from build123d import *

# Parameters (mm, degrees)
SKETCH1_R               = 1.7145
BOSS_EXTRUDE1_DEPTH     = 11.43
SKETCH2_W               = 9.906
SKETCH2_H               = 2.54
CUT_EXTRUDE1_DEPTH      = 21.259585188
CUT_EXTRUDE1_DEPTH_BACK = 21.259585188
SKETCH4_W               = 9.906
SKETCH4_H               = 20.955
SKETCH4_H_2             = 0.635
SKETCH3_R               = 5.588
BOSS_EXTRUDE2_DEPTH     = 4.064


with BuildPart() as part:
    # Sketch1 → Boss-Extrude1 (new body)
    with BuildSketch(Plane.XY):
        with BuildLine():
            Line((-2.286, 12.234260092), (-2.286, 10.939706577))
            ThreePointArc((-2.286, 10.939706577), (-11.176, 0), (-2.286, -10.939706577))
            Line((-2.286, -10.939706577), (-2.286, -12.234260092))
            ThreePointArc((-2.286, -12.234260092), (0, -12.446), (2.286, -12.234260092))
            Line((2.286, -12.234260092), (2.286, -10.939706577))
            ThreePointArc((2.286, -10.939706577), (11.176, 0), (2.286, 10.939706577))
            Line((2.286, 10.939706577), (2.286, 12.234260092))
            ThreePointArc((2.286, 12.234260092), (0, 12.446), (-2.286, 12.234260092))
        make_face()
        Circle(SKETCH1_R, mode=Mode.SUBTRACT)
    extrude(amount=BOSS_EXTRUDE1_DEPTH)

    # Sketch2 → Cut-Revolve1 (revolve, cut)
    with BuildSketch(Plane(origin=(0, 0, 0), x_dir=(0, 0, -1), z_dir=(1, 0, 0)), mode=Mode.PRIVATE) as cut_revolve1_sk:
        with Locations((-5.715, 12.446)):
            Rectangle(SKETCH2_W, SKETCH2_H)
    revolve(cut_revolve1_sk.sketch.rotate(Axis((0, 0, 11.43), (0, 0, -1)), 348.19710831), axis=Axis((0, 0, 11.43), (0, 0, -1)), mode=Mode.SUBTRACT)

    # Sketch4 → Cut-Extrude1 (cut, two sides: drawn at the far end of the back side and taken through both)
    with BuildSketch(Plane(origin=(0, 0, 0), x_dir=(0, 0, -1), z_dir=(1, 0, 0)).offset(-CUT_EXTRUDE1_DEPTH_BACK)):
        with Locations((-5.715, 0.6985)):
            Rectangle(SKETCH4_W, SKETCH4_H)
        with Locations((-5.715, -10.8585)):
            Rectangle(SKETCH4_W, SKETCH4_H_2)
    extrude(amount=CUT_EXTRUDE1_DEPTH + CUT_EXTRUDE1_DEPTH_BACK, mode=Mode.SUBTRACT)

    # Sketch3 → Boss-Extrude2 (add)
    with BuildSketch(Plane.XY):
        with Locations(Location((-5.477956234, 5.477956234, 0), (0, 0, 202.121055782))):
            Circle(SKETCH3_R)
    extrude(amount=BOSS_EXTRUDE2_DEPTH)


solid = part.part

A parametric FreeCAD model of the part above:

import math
import FreeCAD as App
import Part
import Sketcher
Q = App.Units.Quantity

doc = App.newDocument("Part")
params = doc.addObject("Spreadsheet::Sheet", "Params")
for row, (alias, value) in enumerate([
    ("sketch1_radius", "0.44 in"),
    ("sketch1_radius2", "0.49 in"),
    ("sketch1_diameter", "0.135 in"),
    ("pad1_length", "0.45 in"),
    ("sketch2_width", "0.1 in"),
    ("sketch2_height", "0.39 in"),
    ("groove_angle", "360 deg"),
    ("sketch3_height", "0.39 in"),
    ("sketch3_width", "0.825 in"),
    ("sketch3_width2", "0.025 in"),
    ("sketch4_diameter", "0.44 in"),
    ("pad2_length", "0.16 in"),
], start=1):
    params.set(f"A{row}", alias)
    params.set(f"B{row}", "=" + value)
    params.setAlias(f"B{row}", alias)

body = doc.addObject("PartDesign::Body", "Body")

sketch1 = body.newObject("Sketcher::SketchObject", "Sketch")
sketch1.AttachmentSupport = (doc.getObject("XY_Plane"), [""])
sketch1.MapMode = "FlatFace"
sketch1.addGeometry([
    Part.LineSegment(App.Vector(-2.3, 12.2, 0), App.Vector(-2.3, 10.9, 0)),
    Part.ArcOfCircle(Part.Circle(App.Vector(0, 0, 0), App.Vector(0, 0, 1), 11.2), math.radians(102), math.radians(258)),
    Part.LineSegment(App.Vector(-2.3, -10.9, 0), App.Vector(-2.3, -12.2, 0)),
    Part.ArcOfCircle(Part.Circle(App.Vector(0, 0, 0), App.Vector(0, 0, 1), 12.4), math.radians(-101), math.radians(-79)),
    Part.LineSegment(App.Vector(2.3, -12.2, 0), App.Vector(2.3, -10.9, 0)),
    Part.ArcOfCircle(Part.Circle(App.Vector(0, 0, 0), App.Vector(0, 0, 1), 11.2), math.radians(-78), math.radians(78)),
    Part.LineSegment(App.Vector(2.3, 10.9, 0), App.Vector(2.3, 12.2, 0)),
    Part.ArcOfCircle(Part.Circle(App.Vector(0, 0, 0), App.Vector(0, 0, 1), 12.4), math.radians(79), math.radians(101)),
    Part.Circle(App.Vector(0, 0, 0), App.Vector(0, 0, 1), 1.7),
], False)
sketch1.addConstraint([
    Sketcher.Constraint("Coincident", 0, 2, 1, 1),
    Sketcher.Constraint("Coincident", 1, 2, 2, 1),
    Sketcher.Constraint("Coincident", 2, 2, 3, 1),
    Sketcher.Constraint("Coincident", 3, 2, 4, 1),
    Sketcher.Constraint("Coincident", 4, 2, 5, 1),
    Sketcher.Constraint("Coincident", 5, 2, 6, 1),
    Sketcher.Constraint("Coincident", 6, 2, 7, 1),
    Sketcher.Constraint("Coincident", 7, 2, 0, 1),
    Sketcher.Constraint("Vertical", 0),
    Sketcher.Constraint("Vertical", 2),
    Sketcher.Constraint("Vertical", 4),
    Sketcher.Constraint("Vertical", 6),
    Sketcher.Constraint("Coincident", 1, 3, -1, 1),
    Sketcher.Constraint("Coincident", 3, 3, -1, 1),
    Sketcher.Constraint("Coincident", 5, 3, -1, 1),
    Sketcher.Constraint("Coincident", 7, 3, -1, 1),
    Sketcher.Constraint("Coincident", 8, 3, -1, 1),
    Sketcher.Constraint("Equal", 1, 5),
    Sketcher.Constraint("Equal", 3, 7),
    Sketcher.Constraint("Horizontal", 2, 2, 3, 2),
    Sketcher.Constraint("Horizontal", 0, 2, 5, 2),
    Sketcher.Constraint("Vertical", 0, 2, 1, 2),
    Sketcher.Constraint("Radius", 1, Q("0.44 in")),
    Sketcher.Constraint("Radius", 3, Q("0.49 in")),
    Sketcher.Constraint("Diameter", 8, Q("0.135 in")),
    Sketcher.Constraint("DistanceX", 0, 2, -1, 1, Q("0.09 in")),
])
sketch1.setExpression("Constraints[22]", "Params.sketch1_radius")
sketch1.setExpression("Constraints[23]", "Params.sketch1_radius2")
sketch1.setExpression("Constraints[24]", "Params.sketch1_diameter")
pad1 = body.newObject("PartDesign::Pad", "Pad")
pad1.Profile = sketch1
pad1.setExpression("Length", "Params.pad1_length")

sketch2 = body.newObject("Sketcher::SketchObject", "Sketch001")
sketch2.AttachmentSupport = (doc.getObject("YZ_Plane"), [""])
sketch2.MapMode = "FlatFace"
sketch2.addGeometry([
    Part.LineSegment(App.Vector(13.7, 10.7, 0), App.Vector(11.2, 10.7, 0)),
    Part.LineSegment(App.Vector(11.2, 10.7, 0), App.Vector(11.2, 0.8, 0)),
    Part.LineSegment(App.Vector(11.2, 0.8, 0), App.Vector(13.7, 0.8, 0)),
    Part.LineSegment(App.Vector(13.7, 0.8, 0), App.Vector(13.7, 10.7, 0)),
], False)
sketch2.addConstraint([
    Sketcher.Constraint("Coincident", 0, 2, 1, 1),
    Sketcher.Constraint("Coincident", 1, 2, 2, 1),
    Sketcher.Constraint("Coincident", 2, 2, 3, 1),
    Sketcher.Constraint("Coincident", 3, 2, 0, 1),
    Sketcher.Constraint("Horizontal", 0),
    Sketcher.Constraint("Vertical", 1),
    Sketcher.Constraint("Horizontal", 2),
    Sketcher.Constraint("Vertical", 3),
    Sketcher.Constraint("DistanceX", 0, 2, 0, 1, Q("0.1 in")),
    Sketcher.Constraint("DistanceY", 1, 2, 1, 1, Q("0.39 in")),
    Sketcher.Constraint("DistanceX", -1, 1, 0, 2, Q("0.44 in")),
    Sketcher.Constraint("DistanceY", -1, 1, 0, 2, Q("0.42 in")),
])
sketch2.setExpression("Constraints[8]", "Params.sketch2_width")
sketch2.setExpression("Constraints[9]", "Params.sketch2_height")
groove = body.newObject("PartDesign::Groove", "Groove")
groove.Profile = sketch2
groove.ReferenceAxis = (sketch2, ["V_Axis"])
groove.setExpression("Angle", "Params.groove_angle")

sketch3 = body.newObject("Sketcher::SketchObject", "Sketch002")
sketch3.AttachmentSupport = (doc.getObject("YZ_Plane"), [""])
sketch3.MapMode = "FlatFace"
sketch3.addGeometry([
    Part.LineSegment(App.Vector(11.2, 10.7, 0), App.Vector(-9.8, 10.7, 0)),
    Part.LineSegment(App.Vector(-9.8, 10.7, 0), App.Vector(-9.8, 0.8, 0)),
    Part.LineSegment(App.Vector(-9.8, 0.8, 0), App.Vector(11.2, 0.8, 0)),
    Part.LineSegment(App.Vector(11.2, 0.8, 0), App.Vector(11.2, 10.7, 0)),
    Part.LineSegment(App.Vector(-10.5, 10.7, 0), App.Vector(-11.2, 10.7, 0)),
    Part.LineSegment(App.Vector(-11.2, 10.7, 0), App.Vector(-11.2, 0.8, 0)),
    Part.LineSegment(App.Vector(-11.2, 0.8, 0), App.Vector(-10.5, 0.8, 0)),
    Part.LineSegment(App.Vector(-10.5, 0.8, 0), App.Vector(-10.5, 10.7, 0)),
], False)
sketch3.addConstraint([
    Sketcher.Constraint("Coincident", 0, 2, 1, 1),
    Sketcher.Constraint("Coincident", 1, 2, 2, 1),
    Sketcher.Constraint("Coincident", 2, 2, 3, 1),
    Sketcher.Constraint("Coincident", 3, 2, 0, 1),
    Sketcher.Constraint("Coincident", 4, 2, 5, 1),
    Sketcher.Constraint("Coincident", 5, 2, 6, 1),
    Sketcher.Constraint("Coincident", 6, 2, 7, 1),
    Sketcher.Constraint("Coincident", 7, 2, 4, 1),
    Sketcher.Constraint("Horizontal", 0),
    Sketcher.Constraint("Vertical", 1),
    Sketcher.Constraint("Horizontal", 2),
    Sketcher.Constraint("Vertical", 3),
    Sketcher.Constraint("Horizontal", 4),
    Sketcher.Constraint("Vertical", 5),
    Sketcher.Constraint("Horizontal", 6),
    Sketcher.Constraint("Vertical", 7),
    Sketcher.Constraint("Symmetric", 3, 2, 4, 2, -2),
    Sketcher.Constraint("Horizontal", 2, 2, 5, 2),
    Sketcher.Constraint("DistanceY", 1, 2, 1, 1, Q("0.39 in")),
    Sketcher.Constraint("DistanceX", 0, 2, 0, 1, Q("0.825 in")),
    Sketcher.Constraint("DistanceX", 4, 2, 4, 1, Q("0.025 in")),
    Sketcher.Constraint("DistanceY", -1, 1, 0, 2, Q("0.42 in")),
    Sketcher.Constraint("DistanceX", -1, 1, 2, 2, Q("0.44 in")),
])
sketch3.setExpression("Constraints[18]", "Params.sketch3_height")
sketch3.setExpression("Constraints[19]", "Params.sketch3_width")
sketch3.setExpression("Constraints[20]", "Params.sketch3_width2")
pocket1 = body.newObject("PartDesign::Pocket", "Pocket")
pocket1.Profile = sketch3
pocket1.Type = "ThroughAll"
pocket1.Midplane = True

sketch4 = body.newObject("Sketcher::SketchObject", "Sketch003")
sketch4.AttachmentSupport = (doc.getObject("XY_Plane"), [""])
sketch4.MapMode = "FlatFace"
sketch4.addGeometry(Part.Circle(App.Vector(-5, 5, 0), App.Vector(0, 0, 1), 6), False)
sketch4.addConstraint([
    Sketcher.Constraint("Diameter", 0, Q("0.44 in")),
    Sketcher.Constraint("DistanceX", 0, 3, -1, 1, 5.477956),
    Sketcher.Constraint("DistanceY", -1, 1, 0, 3, 5.477956),
])
sketch4.setExpression("Constraints[0]", "Params.sketch4_diameter")
pad2 = body.newObject("PartDesign::Pad", "Pad001")
pad2.Profile = sketch4
pad2.setExpression("Length", "Params.pad2_length")

doc.recompute()
